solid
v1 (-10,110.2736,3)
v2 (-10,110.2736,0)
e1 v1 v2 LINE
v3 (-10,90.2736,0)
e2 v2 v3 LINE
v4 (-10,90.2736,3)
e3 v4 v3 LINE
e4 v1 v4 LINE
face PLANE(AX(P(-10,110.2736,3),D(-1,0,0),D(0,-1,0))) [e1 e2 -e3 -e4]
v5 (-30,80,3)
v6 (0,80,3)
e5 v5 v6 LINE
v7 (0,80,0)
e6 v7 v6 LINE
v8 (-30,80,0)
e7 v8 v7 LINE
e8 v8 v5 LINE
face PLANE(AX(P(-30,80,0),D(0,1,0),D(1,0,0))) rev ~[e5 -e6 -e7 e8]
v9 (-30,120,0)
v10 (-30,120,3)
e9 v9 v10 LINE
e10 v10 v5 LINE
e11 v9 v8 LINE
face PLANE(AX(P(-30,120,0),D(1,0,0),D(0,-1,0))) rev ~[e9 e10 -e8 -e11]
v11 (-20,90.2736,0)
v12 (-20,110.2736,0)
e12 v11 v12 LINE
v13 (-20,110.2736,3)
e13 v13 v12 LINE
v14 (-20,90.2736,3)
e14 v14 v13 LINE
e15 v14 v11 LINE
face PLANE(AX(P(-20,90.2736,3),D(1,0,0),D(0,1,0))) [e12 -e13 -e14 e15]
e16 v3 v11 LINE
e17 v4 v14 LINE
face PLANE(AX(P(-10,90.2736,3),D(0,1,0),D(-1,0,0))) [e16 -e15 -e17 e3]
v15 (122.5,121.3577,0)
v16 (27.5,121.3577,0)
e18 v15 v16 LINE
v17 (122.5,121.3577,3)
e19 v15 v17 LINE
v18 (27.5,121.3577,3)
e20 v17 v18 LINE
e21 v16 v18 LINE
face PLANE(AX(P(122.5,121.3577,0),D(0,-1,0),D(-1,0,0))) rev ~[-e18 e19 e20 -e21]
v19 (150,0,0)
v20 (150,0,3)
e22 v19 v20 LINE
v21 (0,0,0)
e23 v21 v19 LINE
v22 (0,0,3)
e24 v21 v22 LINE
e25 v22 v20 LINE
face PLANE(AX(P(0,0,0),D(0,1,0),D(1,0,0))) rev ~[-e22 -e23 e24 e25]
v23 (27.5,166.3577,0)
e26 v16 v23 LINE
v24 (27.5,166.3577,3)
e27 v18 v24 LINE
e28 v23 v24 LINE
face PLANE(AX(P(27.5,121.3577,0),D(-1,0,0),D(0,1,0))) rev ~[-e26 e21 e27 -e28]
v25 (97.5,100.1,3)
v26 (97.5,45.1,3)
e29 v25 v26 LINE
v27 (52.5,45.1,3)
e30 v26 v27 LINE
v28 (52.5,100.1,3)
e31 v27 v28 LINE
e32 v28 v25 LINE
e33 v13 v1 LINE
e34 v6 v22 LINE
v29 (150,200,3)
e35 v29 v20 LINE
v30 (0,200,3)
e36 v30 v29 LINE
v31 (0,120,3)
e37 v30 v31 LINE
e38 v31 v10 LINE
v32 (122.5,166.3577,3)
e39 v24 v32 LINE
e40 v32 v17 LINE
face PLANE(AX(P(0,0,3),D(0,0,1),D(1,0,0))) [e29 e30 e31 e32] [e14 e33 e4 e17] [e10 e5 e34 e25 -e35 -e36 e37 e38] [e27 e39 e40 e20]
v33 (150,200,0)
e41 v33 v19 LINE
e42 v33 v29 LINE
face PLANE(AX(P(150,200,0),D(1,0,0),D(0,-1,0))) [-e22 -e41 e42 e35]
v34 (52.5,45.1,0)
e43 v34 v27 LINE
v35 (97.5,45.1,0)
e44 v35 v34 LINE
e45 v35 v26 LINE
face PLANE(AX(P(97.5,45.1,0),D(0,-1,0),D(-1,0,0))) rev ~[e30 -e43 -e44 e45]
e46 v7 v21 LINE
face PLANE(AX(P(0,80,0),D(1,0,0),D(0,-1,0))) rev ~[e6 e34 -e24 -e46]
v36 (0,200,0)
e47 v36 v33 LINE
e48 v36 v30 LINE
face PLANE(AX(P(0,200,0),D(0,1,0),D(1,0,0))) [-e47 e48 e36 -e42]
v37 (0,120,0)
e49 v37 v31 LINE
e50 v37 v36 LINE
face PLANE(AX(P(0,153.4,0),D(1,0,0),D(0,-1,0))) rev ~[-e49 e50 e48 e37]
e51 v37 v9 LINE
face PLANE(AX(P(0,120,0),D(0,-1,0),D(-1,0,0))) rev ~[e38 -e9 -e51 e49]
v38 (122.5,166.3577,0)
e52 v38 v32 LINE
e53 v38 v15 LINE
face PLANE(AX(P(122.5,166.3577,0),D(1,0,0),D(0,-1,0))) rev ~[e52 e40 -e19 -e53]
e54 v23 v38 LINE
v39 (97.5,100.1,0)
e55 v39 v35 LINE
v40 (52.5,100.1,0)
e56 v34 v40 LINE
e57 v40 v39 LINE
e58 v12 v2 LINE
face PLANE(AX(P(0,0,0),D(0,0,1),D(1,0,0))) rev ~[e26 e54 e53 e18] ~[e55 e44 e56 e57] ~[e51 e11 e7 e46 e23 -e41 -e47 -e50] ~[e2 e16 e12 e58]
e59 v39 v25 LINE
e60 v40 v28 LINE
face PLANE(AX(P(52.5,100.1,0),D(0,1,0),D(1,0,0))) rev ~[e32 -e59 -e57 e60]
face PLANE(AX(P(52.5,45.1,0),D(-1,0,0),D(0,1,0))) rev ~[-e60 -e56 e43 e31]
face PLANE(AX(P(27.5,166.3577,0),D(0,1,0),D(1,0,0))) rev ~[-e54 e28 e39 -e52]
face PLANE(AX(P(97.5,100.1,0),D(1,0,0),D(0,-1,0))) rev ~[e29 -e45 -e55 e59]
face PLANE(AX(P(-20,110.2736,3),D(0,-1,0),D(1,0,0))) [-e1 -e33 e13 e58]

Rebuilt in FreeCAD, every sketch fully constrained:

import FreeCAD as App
import Part
import Sketcher

doc = App.newDocument("Part")
body = doc.addObject("PartDesign::Body", "Body")

# Sketch on XY plane
sketch1 = body.newObject("Sketcher::SketchObject", "Sketch")
sketch1.AttachmentSupport = (doc.getObject("XY_Plane"), [""])
sketch1.MapMode = "FlatFace"
sketch1.addGeometry(Part.LineSegment(App.Vector(0, 80, 0), App.Vector(0, 0, 0)), False)
sketch1.addGeometry(Part.LineSegment(App.Vector(0, 0, 0), App.Vector(150, 0, 0)), False)
sketch1.addGeometry(Part.LineSegment(App.Vector(150, 0, 0), App.Vector(150, 200, 0)), False)
sketch1.addGeometry(Part.LineSegment(App.Vector(150, 200, 0), App.Vector(0, 200, 0)), False)
sketch1.addGeometry(Part.LineSegment(App.Vector(0, 200, 0), App.Vector(0, 120, 0)), False)
sketch1.addGeometry(Part.LineSegment(App.Vector(0, 120, 0), App.Vector(-30, 120, 0)), False)
sketch1.addGeometry(Part.LineSegment(App.Vector(-30, 120, 0), App.Vector(-30, 80, 0)), False)
sketch1.addGeometry(Part.LineSegment(App.Vector(-30, 80, 0), App.Vector(0, 80, 0)), False)
sketch1.addGeometry(Part.LineSegment(App.Vector(52, 45, 0), App.Vector(52, 100, 0)), False)
sketch1.addGeometry(Part.LineSegment(App.Vector(52, 100, 0), App.Vector(98, 100, 0)), False)
sketch1.addGeometry(Part.LineSegment(App.Vector(98, 100, 0), App.Vector(98, 45, 0)), False)
sketch1.addGeometry(Part.LineSegment(App.Vector(98, 45, 0), App.Vector(52, 45, 0)), False)
sketch1.addGeometry(Part.LineSegment(App.Vector(28, 121, 0), App.Vector(28, 166, 0)), False)
sketch1.addGeometry(Part.LineSegment(App.Vector(28, 166, 0), App.Vector(122, 166, 0)), False)
sketch1.addGeometry(Part.LineSegment(App.Vector(122, 166, 0), App.Vector(122, 121, 0)), False)
sketch1.addGeometry(Part.LineSegment(App.Vector(122, 121, 0), App.Vector(28, 121, 0)), False)
sketch1.addConstraint(Sketcher.Constraint("Coincident", 0, 2, 1, 1))
sketch1.addConstraint(Sketcher.Constraint("Coincident", 1, 2, 2, 1))
sketch1.addConstraint(Sketcher.Constraint("Coincident", 2, 2, 3, 1))
sketch1.addConstraint(Sketcher.Constraint("Coincident", 3, 2, 4, 1))
sketch1.addConstraint(Sketcher.Constraint("Coincident", 4, 2, 5, 1))
sketch1.addConstraint(Sketcher.Constraint("Coincident", 5, 2, 6, 1))
sketch1.addConstraint(Sketcher.Constraint("Coincident", 6, 2, 7, 1))
sketch1.addConstraint(Sketcher.Constraint("Coincident", 7, 2, 0, 1))
sketch1.addConstraint(Sketcher.Constraint("Coincident", 8, 2, 9, 1))
sketch1.addConstraint(Sketcher.Constraint("Coincident", 9, 2, 10, 1))
sketch1.addConstraint(Sketcher.Constraint("Coincident", 10, 2, 11, 1))
sketch1.addConstraint(Sketcher.Constraint("Coincident", 11, 2, 8, 1))
sketch1.addConstraint(Sketcher.Constraint("Coincident", 12, 2, 13, 1))
sketch1.addConstraint(Sketcher.Constraint("Coincident", 13, 2, 14, 1))
sketch1.addConstraint(Sketcher.Constraint("Coincident", 14, 2, 15, 1))
sketch1.addConstraint(Sketcher.Constraint("Coincident", 15, 2, 12, 1))
sketch1.addConstraint(Sketcher.Constraint("Vertical", 0))
sketch1.addConstraint(Sketcher.Constraint("Horizontal", 1))
sketch1.addConstraint(Sketcher.Constraint("Vertical", 2))
sketch1.addConstraint(Sketcher.Constraint("Horizontal", 3))
sketch1.addConstraint(Sketcher.Constraint("Vertical", 4))
sketch1.addConstraint(Sketcher.Constraint("Horizontal", 5))
sketch1.addConstraint(Sketcher.Constraint("Vertical", 6))
sketch1.addConstraint(Sketcher.Constraint("Horizontal", 7))
sketch1.addConstraint(Sketcher.Constraint("Vertical", 8))
sketch1.addConstraint(Sketcher.Constraint("Horizontal", 9))
sketch1.addConstraint(Sketcher.Constraint("Vertical", 10))
sketch1.addConstraint(Sketcher.Constraint("Horizontal", 11))
sketch1.addConstraint(Sketcher.Constraint("Vertical", 12))
sketch1.addConstraint(Sketcher.Constraint("Horizontal", 13))
sketch1.addConstraint(Sketcher.Constraint("Vertical", 14))
sketch1.addConstraint(Sketcher.Constraint("Horizontal", 15))
sketch1.addConstraint(Sketcher.Constraint("Coincident", 0, 2, -1, 1))
sketch1.addConstraint(Sketcher.Constraint("PointOnObject", 3, 2, -2))
sketch1.addConstraint(Sketcher.Constraint("Equal", 0, 4))
sketch1.addConstraint(Sketcher.Constraint("Equal", 11, 12))
sketch1.addConstraint(Sketcher.Constraint("DistanceX", 1, 1, 1, 2, 150.0))
sketch1.addConstraint(Sketcher.Constraint("DistanceX", 9, 1, 9, 2, 45.0))
sketch1.addConstraint(Sketcher.Constraint("DistanceX", 13, 1, 13, 2, 95.0))
sketch1.addConstraint(Sketcher.Constraint("DistanceY", 0, 2, 0, 1, 80.0))
sketch1.addConstraint(Sketcher.Constraint("DistanceY", 2, 1, 2, 2, 200.0))
sketch1.addConstraint(Sketcher.Constraint("DistanceY", 8, 1, 8, 2, 55.0))
sketch1.addConstraint(Sketcher.Constraint("DistanceX", 5, 2, 5, 1, 30.0))
sketch1.addConstraint(Sketcher.Constraint("DistanceX", 12, 2, 8, 2, 25.0))
sketch1.addConstraint(Sketcher.Constraint("DistanceX", -1, 1, 8, 2, 52.5))
sketch1.addConstraint(Sketcher.Constraint("DistanceY", -1, 1, 8, 2, 100.1))
sketch1.addConstraint(Sketcher.Constraint("DistanceY", -1, 1, 12, 2, 166.3577))
pad1 = body.newObject("PartDesign::Pad", "Pad")
pad1.Profile = sketch1
pad1.Length = 3

# Sketch on XY plane
sketch2 = body.newObject("Sketcher::SketchObject", "Sketch001")
sketch2.AttachmentSupport = (doc.getObject("XY_Plane"), [""])
sketch2.MapMode = "FlatFace"
sketch2.AttachmentOffset = App.Placement(App.Vector(0, 0, 3), App.Rotation())
sketch2.addGeometry(Part.LineSegment(App.Vector(-10, 110, 0), App.Vector(-20, 110, 0)), False)
sketch2.addGeometry(Part.LineSegment(App.Vector(-20, 110, 0), App.Vector(-20, 90, 0)), False)
sketch2.addGeometry(Part.LineSegment(App.Vector(-20, 90, 0), App.Vector(-10, 90, 0)), False)
sketch2.addGeometry(Part.LineSegment(App.Vector(-10, 90, 0), App.Vector(-10, 110, 0)), False)
sketch2.addConstraint(Sketcher.Constraint("Coincident", 0, 2, 1, 1))
sketch2.addConstraint(Sketcher.Constraint("Coincident", 1, 2, 2, 1))
sketch2.addConstraint(Sketcher.Constraint("Coincident", 2, 2, 3, 1))
sketch2.addConstraint(Sketcher.Constraint("Coincident", 3, 2, 0, 1))
sketch2.addConstraint(Sketcher.Constraint("Horizontal", 0))
sketch2.addConstraint(Sketcher.Constraint("Vertical", 1))
sketch2.addConstraint(Sketcher.Constraint("Horizontal", 2))
sketch2.addConstraint(Sketcher.Constraint("Vertical", 3))
sketch2.addConstraint(Sketcher.Constraint("DistanceX", 0, 2, 0, 1, 10.0))
sketch2.addConstraint(Sketcher.Constraint("DistanceY", 1, 2, 1, 1, 20.0))
sketch2.addConstraint(Sketcher.Constraint("DistanceX", 0, 2, -1, 1, 20.0))
sketch2.addConstraint(Sketcher.Constraint("DistanceY", -1, 1, 0, 2, 110.2736))
pocket1 = body.newObject("PartDesign::Pocket", "Pocket")
pocket1.Profile = sketch2
pocket1.Length = 3

doc.recompute()
